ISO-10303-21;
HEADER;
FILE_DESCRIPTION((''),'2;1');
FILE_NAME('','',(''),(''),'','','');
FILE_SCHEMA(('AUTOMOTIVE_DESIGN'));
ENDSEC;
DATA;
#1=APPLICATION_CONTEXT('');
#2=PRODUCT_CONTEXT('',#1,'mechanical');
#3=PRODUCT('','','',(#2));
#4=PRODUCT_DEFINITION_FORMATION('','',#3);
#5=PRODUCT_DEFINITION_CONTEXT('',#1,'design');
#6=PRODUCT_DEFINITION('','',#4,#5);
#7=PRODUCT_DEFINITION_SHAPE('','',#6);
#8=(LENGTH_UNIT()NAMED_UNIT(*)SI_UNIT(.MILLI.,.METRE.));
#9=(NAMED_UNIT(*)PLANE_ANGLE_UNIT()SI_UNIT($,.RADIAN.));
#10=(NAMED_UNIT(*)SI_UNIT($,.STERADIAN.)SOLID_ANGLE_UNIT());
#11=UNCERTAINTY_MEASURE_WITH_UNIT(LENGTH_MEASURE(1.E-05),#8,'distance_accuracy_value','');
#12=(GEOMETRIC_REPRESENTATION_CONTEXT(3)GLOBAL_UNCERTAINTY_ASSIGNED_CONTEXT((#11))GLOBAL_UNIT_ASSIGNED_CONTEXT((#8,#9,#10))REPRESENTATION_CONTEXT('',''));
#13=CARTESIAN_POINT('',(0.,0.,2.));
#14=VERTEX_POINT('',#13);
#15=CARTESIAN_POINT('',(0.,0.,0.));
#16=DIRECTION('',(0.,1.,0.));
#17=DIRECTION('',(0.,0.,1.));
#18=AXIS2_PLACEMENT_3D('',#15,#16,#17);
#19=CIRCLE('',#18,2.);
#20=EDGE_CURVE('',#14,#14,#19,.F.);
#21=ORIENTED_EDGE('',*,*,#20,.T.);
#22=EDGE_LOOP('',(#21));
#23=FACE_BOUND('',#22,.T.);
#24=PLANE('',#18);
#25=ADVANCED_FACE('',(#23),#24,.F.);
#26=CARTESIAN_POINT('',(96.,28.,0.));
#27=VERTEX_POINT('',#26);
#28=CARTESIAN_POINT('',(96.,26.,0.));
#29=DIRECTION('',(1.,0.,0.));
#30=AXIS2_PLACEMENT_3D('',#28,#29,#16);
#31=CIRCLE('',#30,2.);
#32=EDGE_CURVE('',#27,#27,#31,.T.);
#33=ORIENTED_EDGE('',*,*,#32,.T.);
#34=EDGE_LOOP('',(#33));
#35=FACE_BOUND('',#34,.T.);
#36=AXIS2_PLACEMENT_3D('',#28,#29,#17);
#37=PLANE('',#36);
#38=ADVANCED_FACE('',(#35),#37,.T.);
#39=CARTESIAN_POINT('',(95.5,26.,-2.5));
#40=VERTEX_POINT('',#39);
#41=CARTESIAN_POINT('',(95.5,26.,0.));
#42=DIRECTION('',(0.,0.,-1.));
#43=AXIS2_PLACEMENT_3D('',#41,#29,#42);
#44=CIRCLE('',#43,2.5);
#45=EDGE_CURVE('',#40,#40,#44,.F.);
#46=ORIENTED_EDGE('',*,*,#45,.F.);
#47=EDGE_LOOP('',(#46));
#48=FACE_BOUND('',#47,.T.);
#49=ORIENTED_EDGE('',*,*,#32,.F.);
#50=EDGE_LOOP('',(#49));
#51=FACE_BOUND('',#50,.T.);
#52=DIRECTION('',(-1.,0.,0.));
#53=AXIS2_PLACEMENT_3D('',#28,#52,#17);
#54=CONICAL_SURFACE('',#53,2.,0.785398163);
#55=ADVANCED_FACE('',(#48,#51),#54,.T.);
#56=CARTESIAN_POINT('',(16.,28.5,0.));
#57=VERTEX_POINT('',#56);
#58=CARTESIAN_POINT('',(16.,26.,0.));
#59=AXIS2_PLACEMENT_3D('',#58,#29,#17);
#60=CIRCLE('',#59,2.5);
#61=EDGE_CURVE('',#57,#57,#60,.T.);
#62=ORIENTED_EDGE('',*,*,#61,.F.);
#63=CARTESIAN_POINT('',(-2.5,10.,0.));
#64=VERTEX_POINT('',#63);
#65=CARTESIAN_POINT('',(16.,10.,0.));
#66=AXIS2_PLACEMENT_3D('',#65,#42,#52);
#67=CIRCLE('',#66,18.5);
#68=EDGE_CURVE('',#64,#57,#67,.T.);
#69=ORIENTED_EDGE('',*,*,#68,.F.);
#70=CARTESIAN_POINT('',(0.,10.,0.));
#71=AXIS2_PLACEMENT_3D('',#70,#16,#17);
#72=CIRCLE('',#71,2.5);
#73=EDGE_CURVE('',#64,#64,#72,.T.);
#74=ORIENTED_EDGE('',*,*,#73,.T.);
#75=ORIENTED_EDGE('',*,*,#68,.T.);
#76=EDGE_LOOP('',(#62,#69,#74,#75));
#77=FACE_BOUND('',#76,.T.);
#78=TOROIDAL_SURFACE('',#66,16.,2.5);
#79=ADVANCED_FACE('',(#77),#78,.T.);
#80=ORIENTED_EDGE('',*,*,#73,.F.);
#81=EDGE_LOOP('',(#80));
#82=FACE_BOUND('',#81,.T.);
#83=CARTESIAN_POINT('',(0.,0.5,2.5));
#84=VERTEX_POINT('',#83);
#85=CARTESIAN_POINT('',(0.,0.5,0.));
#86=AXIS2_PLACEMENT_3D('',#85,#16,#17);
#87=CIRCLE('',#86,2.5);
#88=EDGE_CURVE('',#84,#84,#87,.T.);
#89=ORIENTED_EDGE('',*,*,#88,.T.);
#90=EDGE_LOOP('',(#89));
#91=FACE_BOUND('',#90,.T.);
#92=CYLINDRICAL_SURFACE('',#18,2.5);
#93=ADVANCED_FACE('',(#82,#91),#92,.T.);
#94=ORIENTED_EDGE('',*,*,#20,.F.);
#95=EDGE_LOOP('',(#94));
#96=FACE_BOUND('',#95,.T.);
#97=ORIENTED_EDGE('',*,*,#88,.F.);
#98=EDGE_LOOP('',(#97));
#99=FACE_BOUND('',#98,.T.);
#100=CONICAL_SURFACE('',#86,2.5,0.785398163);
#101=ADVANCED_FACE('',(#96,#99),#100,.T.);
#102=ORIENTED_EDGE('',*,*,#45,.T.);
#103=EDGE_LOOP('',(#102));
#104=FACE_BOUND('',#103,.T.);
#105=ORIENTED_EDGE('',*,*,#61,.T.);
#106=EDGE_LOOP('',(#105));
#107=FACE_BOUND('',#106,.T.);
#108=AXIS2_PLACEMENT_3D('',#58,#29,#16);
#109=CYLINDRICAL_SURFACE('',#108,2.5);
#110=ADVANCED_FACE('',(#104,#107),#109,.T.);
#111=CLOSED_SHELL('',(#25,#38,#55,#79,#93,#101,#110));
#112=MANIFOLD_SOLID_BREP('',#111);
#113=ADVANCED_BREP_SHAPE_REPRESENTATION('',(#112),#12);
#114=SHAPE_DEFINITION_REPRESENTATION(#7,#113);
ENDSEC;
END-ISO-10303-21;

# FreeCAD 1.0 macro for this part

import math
import FreeCAD as App
import Part
import Sketcher


def edges_at(feature, points):
    """Names of the edges that pass closest to the given points."""
    edges = feature.Shape.Edges
    near = lambda p: min(range(len(edges)), key=lambda i: edges[i].distToShape(Part.Vertex(*p))[0])
    return sorted({f"Edge{near(p) + 1}" for p in points})

doc = App.newDocument("Part")
params = doc.addObject("Spreadsheet::Sheet", "Params")
for row, (alias, value) in enumerate([
    ("sketch1_diameter", "5 mm"),
    ("sketch2_radius", "16 mm"),
    ("sketch2_width", "80 mm"),
    ("sketch2_height", "10 mm"),
    ("chamfer_size", "0.5 mm"),
], start=1):
    params.set(f"A{row}", alias)
    params.set(f"B{row}", "=" + value)
    params.setAlias(f"B{row}", alias)

body = doc.addObject("PartDesign::Body", "Body")

# Sketch on XZ plane
sketch1 = doc.addObject("Sketcher::SketchObject", "Sketch")
body.addObject(sketch1)
sketch1.AttachmentSupport = (doc.XZ_Plane, [""])
sketch1.MapMode = "FlatFace"
sketch1.addGeometry(Part.Circle(App.Vector(0, 0, 0), App.Vector(0, 0, 1), 2.5), False)
sketch1.addConstraint([
    Sketcher.Constraint("Coincident", 0, 3, -1, 1),
    Sketcher.Constraint("Diameter", 0, 5.0),
])
sketch1.setExpression("Constraints[1]", "Params.sketch1_diameter")

# Sketch on XY plane
sketch2 = doc.addObject("Sketcher::SketchObject", "Sketch001")
body.addObject(sketch2)
sketch2.AttachmentSupport = (doc.XY_Plane, [""])
sketch2.MapMode = "FlatFace"
sketch2.addGeometry([
    Part.LineSegment(App.Vector(0, 0, 0), App.Vector(0, 10, 0)),
    Part.ArcOfCircle(Part.Circle(App.Vector(16, 10, 0), App.Vector(0, 0, 1), 16), math.radians(90), math.radians(180)),
    Part.LineSegment(App.Vector(16, 26, 0), App.Vector(96, 26, 0)),
], False)
sketch2.addConstraint([
    Sketcher.Constraint("Tangent", 0, 2, 1, 2),
    Sketcher.Constraint("Tangent", 1, 1, 2, 1),
    Sketcher.Constraint("Vertical", 0),
    Sketcher.Constraint("Horizontal", 2),
    Sketcher.Constraint("Coincident", 0, 1, -1, 1),
    Sketcher.Constraint("Radius", 1, 16.0),
    Sketcher.Constraint("DistanceX", 2, 1, 2, 2, 80.0),
    Sketcher.Constraint("DistanceY", 0, 1, 0, 2, 10.0),
])
sketch2.setExpression("Constraints[5]", "Params.sketch2_radius")
sketch2.setExpression("Constraints[6]", "Params.sketch2_width")
sketch2.setExpression("Constraints[7]", "Params.sketch2_height")
doc.recompute()

additivepipe = doc.addObject("PartDesign::AdditivePipe", "AdditivePipe")
body.addObject(additivepipe)
additivepipe.Profile = sketch1
additivepipe.Spine = (sketch2, ["Edge1", "Edge2", "Edge3"])
doc.recompute()

chamfer = doc.addObject("PartDesign::Chamfer", "Chamfer")
body.addObject(chamfer)
chamfer.Base = (additivepipe, edges_at(additivepipe, [(96, 28.5, 0), (-2.5, 0, 0)]))
chamfer.setExpression("Size", "Params.chamfer_size")

doc.recompute()
